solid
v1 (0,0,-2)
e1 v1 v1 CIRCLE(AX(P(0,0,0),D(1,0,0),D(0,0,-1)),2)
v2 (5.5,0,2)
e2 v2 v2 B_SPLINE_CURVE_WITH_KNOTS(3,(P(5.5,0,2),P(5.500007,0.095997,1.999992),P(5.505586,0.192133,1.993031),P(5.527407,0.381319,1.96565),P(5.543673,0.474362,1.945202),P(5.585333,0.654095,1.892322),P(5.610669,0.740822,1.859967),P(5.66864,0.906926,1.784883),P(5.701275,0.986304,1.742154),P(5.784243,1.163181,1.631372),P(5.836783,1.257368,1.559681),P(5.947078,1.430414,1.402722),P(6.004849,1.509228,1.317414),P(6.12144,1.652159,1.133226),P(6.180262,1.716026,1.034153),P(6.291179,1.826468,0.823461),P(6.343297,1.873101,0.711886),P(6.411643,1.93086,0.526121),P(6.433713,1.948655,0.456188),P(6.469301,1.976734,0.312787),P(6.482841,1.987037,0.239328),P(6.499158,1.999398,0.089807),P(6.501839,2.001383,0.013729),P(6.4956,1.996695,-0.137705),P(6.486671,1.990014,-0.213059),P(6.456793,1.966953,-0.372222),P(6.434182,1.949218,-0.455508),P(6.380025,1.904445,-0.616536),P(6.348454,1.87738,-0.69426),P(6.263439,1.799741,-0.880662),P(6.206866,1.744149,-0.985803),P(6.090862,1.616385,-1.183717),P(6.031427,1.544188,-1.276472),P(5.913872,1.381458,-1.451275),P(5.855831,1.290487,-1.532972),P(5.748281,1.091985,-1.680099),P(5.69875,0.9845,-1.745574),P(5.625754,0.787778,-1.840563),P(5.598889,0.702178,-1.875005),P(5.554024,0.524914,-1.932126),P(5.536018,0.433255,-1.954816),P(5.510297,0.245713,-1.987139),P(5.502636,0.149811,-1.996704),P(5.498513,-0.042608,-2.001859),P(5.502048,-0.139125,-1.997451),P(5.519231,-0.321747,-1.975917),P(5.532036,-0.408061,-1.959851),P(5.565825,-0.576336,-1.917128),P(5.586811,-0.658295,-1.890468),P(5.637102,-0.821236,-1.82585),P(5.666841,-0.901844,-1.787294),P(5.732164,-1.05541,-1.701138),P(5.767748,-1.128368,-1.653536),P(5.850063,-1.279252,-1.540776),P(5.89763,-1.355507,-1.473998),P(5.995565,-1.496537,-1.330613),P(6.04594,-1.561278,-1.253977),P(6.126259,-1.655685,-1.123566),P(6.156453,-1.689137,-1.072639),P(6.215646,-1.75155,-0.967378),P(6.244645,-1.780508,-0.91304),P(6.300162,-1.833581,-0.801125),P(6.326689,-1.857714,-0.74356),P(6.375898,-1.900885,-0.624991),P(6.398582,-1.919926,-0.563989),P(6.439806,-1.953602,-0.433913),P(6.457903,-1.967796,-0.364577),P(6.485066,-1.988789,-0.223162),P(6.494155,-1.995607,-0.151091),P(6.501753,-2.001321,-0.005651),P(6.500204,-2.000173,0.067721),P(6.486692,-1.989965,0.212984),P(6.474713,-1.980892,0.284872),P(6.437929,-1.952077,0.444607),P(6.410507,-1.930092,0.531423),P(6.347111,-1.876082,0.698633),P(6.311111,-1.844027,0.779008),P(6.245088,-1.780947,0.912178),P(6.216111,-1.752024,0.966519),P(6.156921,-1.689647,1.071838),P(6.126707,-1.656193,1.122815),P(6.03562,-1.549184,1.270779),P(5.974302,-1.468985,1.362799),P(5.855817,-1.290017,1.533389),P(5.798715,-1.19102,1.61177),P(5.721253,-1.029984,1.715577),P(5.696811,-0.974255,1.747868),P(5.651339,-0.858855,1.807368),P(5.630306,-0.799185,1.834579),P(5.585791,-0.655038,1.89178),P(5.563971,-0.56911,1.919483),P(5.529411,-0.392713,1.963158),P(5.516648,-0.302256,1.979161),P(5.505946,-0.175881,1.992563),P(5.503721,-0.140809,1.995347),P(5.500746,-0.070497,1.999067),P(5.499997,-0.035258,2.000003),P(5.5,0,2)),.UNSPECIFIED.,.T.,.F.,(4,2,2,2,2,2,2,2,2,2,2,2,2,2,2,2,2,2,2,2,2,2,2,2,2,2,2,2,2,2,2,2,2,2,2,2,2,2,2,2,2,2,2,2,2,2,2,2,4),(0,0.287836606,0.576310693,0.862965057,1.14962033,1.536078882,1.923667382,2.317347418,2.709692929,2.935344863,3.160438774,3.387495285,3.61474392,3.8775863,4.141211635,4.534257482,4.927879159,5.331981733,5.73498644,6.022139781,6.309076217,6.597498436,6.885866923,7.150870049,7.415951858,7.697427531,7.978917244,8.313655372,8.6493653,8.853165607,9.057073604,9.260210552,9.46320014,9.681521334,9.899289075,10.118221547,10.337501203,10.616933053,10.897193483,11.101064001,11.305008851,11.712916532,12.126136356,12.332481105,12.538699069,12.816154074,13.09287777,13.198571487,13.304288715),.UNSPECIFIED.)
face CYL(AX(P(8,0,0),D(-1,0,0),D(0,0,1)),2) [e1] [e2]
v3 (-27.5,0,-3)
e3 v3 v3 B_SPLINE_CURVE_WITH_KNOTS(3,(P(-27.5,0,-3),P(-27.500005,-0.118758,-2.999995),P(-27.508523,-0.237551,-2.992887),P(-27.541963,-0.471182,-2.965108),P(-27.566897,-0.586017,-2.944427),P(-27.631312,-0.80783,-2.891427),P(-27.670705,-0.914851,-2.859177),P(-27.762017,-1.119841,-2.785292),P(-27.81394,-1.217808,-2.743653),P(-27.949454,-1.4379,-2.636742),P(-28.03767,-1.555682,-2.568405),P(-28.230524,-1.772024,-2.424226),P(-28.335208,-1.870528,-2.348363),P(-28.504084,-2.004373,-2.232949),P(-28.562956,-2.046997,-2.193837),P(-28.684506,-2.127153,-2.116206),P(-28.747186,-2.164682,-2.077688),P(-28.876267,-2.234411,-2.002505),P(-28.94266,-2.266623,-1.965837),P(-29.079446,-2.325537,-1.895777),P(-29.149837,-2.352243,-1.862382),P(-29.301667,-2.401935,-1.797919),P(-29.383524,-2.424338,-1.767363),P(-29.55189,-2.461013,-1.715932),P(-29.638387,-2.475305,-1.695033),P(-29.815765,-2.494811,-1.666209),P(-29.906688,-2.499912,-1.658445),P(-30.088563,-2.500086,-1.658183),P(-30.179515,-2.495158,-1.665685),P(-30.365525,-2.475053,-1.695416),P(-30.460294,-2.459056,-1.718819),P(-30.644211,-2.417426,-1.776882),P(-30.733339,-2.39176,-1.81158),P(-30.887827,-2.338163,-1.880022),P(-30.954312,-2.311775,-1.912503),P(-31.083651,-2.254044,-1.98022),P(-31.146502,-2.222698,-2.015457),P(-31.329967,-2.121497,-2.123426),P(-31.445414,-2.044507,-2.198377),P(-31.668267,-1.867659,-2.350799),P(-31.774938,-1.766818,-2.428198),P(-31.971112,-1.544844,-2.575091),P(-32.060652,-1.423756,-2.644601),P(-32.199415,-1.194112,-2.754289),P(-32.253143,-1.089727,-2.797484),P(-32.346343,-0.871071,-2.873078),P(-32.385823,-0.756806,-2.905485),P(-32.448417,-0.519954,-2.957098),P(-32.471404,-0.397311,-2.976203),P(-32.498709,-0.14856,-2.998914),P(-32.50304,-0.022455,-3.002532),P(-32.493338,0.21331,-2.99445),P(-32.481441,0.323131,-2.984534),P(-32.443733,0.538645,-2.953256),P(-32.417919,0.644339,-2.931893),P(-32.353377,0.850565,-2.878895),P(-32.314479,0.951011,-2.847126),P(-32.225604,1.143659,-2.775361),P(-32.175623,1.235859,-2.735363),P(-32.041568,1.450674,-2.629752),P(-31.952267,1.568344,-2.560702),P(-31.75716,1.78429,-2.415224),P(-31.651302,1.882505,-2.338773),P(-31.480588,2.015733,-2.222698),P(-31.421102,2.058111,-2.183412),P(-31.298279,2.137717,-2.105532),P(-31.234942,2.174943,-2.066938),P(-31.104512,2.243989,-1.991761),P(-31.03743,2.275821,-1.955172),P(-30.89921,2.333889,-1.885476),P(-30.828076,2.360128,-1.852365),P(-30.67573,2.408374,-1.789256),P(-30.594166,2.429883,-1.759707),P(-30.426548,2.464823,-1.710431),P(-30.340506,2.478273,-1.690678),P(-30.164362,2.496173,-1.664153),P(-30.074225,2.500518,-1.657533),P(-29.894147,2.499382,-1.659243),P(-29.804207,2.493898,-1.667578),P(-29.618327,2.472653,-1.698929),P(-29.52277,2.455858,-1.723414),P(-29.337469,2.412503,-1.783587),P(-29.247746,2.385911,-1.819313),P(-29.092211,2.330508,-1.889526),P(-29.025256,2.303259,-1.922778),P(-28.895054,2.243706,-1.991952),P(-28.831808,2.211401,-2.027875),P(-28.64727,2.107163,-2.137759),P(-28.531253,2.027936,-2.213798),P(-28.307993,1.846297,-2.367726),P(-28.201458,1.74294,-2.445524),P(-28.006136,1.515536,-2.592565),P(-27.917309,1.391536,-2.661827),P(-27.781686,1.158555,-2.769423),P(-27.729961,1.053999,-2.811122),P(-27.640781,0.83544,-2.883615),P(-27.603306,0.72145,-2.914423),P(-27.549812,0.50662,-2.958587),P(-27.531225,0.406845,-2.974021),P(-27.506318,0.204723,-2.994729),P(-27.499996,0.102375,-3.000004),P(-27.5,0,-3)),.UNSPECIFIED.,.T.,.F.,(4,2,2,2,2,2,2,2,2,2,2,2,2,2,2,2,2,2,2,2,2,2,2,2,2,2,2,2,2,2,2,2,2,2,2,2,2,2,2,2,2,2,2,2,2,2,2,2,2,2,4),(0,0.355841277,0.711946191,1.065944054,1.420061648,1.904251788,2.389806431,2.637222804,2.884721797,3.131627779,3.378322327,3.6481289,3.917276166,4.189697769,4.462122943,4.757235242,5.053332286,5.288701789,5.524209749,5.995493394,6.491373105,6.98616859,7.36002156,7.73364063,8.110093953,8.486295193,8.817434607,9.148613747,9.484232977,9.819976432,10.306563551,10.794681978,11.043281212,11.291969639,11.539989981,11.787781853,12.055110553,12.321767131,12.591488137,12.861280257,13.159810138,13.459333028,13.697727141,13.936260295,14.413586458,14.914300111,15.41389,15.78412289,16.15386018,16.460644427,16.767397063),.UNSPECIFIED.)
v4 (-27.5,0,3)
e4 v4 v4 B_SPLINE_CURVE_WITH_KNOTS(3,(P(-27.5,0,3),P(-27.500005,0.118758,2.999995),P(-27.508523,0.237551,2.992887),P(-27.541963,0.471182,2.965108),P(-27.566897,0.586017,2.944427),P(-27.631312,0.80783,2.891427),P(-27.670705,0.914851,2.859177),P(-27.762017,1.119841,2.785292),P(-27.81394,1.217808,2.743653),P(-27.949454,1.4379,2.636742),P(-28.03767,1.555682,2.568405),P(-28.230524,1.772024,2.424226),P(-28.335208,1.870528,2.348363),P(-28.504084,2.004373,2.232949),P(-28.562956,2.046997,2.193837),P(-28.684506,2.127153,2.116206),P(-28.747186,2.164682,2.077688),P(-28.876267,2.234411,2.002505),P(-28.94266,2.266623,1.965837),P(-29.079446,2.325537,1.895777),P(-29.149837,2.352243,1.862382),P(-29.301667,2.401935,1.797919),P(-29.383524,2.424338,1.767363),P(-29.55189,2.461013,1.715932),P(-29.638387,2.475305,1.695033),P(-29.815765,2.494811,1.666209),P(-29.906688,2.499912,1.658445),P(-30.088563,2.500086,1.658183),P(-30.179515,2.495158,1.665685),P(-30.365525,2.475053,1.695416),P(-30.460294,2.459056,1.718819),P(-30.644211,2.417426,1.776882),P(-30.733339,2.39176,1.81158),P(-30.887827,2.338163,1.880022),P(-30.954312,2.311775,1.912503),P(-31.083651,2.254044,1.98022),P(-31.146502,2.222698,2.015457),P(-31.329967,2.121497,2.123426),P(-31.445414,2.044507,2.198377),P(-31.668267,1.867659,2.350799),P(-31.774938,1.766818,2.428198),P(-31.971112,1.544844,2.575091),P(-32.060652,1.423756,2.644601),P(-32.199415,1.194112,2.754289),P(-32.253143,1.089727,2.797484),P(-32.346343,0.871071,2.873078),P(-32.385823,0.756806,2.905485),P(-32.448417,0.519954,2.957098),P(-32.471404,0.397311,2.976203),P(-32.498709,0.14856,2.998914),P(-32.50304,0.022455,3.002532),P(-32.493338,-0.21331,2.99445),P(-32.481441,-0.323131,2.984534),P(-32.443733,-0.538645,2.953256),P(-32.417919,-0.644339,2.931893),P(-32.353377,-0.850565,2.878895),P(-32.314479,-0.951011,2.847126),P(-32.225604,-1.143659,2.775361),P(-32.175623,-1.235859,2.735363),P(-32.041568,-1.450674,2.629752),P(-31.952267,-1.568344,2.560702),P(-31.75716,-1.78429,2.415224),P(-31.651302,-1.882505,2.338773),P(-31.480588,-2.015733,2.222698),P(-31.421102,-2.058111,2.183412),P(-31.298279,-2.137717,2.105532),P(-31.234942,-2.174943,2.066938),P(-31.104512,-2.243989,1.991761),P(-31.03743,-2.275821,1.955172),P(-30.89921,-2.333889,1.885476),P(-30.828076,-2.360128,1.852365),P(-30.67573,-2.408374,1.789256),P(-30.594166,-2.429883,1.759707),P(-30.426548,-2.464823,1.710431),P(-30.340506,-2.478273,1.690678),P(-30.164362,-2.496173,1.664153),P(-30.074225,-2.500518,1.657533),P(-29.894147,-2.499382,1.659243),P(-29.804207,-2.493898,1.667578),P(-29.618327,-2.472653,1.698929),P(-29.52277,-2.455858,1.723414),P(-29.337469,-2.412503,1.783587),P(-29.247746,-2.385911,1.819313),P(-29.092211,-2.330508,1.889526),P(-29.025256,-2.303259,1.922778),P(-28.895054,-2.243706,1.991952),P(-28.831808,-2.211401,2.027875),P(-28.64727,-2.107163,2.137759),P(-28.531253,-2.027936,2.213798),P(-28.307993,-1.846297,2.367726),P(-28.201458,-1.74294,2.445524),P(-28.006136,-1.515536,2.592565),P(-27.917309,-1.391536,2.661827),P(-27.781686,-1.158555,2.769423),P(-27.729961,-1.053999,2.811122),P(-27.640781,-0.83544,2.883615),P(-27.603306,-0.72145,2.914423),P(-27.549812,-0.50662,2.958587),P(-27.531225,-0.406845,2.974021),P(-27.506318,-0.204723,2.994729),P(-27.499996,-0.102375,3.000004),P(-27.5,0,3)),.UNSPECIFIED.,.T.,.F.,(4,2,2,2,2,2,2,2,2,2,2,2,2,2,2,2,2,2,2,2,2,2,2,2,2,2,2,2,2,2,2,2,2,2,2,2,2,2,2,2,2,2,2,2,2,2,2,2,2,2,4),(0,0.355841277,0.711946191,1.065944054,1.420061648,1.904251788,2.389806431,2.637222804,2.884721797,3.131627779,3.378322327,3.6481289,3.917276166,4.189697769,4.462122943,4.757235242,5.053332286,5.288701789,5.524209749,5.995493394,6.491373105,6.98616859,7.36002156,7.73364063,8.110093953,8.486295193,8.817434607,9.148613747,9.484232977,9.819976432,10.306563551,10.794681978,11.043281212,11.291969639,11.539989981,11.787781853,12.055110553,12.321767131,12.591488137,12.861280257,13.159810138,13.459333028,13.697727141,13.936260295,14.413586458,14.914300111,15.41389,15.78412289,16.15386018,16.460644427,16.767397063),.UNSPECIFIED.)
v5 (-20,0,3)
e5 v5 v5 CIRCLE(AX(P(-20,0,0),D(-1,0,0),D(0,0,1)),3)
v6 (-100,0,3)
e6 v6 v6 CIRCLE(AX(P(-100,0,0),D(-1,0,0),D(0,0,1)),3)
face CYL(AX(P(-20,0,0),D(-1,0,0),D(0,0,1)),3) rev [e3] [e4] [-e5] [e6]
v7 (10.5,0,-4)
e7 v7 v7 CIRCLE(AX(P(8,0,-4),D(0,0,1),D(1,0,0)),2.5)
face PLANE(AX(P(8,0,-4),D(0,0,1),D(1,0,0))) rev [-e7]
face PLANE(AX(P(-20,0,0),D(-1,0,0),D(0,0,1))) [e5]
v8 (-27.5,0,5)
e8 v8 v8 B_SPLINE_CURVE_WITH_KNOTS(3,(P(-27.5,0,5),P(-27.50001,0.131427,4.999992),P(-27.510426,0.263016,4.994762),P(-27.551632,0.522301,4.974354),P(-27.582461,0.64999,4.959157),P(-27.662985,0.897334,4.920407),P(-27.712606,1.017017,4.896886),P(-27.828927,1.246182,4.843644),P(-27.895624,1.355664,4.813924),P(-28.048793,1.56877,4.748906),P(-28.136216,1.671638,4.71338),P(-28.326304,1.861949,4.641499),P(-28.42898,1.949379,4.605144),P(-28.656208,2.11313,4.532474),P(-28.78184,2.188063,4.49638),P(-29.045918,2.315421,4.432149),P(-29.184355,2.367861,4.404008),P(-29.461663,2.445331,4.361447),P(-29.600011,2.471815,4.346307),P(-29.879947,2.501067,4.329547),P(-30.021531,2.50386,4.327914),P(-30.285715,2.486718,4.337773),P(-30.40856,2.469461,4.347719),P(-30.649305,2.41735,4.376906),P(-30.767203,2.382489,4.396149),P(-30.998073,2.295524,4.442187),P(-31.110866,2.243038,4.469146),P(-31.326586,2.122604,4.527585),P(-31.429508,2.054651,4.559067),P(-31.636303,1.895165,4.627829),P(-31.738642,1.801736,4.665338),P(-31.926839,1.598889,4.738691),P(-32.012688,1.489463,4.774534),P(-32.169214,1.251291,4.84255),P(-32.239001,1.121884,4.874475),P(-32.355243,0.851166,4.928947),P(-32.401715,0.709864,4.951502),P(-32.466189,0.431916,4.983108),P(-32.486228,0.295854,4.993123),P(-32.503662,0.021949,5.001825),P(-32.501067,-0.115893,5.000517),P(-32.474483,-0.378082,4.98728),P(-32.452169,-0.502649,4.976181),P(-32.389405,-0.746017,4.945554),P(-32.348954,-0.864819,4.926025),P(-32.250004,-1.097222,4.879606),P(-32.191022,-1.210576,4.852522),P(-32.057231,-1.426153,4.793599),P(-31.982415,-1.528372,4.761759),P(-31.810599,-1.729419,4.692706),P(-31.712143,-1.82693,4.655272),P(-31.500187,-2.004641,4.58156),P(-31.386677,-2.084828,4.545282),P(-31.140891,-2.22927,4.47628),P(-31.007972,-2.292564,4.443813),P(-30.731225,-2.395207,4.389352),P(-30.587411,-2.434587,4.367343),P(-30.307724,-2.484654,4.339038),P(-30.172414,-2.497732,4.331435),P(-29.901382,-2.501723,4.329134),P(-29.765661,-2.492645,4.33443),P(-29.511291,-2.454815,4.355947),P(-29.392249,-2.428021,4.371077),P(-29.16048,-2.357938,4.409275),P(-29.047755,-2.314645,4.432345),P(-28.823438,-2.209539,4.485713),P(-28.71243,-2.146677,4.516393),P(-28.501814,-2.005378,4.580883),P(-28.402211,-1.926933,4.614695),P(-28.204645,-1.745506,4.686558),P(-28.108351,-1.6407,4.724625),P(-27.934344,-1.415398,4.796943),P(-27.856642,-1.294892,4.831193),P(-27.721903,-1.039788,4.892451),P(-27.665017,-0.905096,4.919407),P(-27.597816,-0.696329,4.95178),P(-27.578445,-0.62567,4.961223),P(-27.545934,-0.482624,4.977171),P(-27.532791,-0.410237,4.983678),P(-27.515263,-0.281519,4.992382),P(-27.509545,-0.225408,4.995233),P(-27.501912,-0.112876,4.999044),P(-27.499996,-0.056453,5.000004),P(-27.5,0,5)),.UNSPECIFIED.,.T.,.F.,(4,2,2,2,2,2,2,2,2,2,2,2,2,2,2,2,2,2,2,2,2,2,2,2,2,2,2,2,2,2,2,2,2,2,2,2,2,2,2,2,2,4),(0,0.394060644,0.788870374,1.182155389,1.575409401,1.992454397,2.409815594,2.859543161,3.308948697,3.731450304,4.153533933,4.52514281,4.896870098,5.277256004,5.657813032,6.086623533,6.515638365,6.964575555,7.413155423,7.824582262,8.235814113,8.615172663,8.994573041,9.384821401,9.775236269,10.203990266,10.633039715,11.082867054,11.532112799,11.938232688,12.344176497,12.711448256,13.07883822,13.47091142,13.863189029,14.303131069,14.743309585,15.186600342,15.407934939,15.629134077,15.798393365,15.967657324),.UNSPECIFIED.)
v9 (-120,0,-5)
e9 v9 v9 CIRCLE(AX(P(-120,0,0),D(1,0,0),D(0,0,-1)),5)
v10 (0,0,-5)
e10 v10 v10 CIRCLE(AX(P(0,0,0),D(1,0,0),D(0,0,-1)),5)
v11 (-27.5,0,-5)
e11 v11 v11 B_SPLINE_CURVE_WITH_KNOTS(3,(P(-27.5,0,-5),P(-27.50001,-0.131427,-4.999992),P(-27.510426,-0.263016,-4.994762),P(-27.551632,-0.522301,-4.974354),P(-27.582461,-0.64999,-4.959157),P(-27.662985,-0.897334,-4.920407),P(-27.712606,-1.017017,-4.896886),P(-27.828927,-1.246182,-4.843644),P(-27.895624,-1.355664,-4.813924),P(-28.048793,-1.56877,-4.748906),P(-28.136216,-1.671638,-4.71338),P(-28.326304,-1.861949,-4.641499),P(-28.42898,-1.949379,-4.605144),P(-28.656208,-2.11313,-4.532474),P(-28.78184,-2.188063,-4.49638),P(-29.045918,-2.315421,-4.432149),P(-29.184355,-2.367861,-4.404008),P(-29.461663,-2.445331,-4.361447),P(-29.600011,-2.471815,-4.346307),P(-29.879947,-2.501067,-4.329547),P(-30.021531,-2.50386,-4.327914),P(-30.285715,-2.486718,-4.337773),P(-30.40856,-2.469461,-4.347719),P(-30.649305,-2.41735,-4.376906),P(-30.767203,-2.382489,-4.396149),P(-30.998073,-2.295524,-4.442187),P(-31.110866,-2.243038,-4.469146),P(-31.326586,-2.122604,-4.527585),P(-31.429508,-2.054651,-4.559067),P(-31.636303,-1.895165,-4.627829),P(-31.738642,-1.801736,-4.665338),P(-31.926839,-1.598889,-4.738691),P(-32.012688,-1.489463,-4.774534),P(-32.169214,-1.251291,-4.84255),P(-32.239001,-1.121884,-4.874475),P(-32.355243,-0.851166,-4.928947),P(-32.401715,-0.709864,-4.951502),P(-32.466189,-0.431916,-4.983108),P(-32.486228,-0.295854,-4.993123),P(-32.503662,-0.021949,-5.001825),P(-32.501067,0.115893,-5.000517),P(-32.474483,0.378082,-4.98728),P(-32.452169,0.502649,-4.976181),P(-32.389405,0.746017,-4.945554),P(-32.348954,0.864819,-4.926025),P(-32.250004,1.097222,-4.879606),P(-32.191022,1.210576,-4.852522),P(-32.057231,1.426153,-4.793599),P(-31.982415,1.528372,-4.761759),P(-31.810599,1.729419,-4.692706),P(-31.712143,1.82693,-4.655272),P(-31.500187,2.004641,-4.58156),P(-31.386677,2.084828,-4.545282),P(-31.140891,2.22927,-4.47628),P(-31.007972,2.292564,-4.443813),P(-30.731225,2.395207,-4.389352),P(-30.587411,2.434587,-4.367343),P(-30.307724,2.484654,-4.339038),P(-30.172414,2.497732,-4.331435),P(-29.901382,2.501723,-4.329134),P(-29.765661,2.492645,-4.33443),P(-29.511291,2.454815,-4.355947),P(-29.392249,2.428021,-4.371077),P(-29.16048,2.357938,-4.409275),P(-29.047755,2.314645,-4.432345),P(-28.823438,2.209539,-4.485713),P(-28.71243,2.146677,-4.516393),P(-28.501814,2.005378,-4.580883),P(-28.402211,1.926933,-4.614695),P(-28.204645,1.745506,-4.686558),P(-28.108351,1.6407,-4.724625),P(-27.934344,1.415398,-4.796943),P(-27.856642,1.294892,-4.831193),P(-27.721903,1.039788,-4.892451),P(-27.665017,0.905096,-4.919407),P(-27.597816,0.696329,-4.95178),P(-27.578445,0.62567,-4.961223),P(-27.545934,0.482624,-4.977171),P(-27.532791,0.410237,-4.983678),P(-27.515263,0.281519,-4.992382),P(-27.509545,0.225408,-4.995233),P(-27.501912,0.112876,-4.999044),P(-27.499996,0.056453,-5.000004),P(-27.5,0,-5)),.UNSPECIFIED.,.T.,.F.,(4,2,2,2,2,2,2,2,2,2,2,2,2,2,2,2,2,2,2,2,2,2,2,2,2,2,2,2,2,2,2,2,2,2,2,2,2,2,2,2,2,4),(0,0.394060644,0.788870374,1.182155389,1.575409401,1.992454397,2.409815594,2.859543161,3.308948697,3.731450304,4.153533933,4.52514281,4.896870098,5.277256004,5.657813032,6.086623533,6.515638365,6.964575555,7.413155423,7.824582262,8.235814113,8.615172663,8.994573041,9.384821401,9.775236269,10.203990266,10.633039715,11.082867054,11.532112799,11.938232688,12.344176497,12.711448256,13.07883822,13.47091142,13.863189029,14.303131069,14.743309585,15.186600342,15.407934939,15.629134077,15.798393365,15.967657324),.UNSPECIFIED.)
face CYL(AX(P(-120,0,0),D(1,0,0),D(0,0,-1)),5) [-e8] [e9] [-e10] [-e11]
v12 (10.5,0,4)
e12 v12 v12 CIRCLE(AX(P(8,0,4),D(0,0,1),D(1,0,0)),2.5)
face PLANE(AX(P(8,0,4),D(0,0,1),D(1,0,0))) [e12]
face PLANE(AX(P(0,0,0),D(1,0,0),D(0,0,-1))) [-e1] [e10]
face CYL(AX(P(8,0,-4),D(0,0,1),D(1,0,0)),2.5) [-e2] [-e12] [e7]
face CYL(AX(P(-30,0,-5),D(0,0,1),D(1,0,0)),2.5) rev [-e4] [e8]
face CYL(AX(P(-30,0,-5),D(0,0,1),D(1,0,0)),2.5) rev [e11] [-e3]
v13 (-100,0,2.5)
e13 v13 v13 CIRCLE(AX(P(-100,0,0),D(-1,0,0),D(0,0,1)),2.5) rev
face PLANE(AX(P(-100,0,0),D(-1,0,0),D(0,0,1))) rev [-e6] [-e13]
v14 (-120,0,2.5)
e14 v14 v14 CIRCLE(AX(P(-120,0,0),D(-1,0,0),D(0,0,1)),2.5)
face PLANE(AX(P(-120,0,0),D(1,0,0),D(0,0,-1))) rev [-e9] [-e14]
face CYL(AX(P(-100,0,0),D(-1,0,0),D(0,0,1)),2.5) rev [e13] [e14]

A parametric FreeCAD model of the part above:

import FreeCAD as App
import Part
import Sketcher

V = App.Vector
Q = App.Units.Quantity

doc = App.newDocument("Part")
params = doc.addObject("Spreadsheet::Sheet", "Params")
for row, (alias, value) in enumerate([
    ("sketch1_diameter", "10 mm"),
    ("pad1_length", "120 mm"),
    ("sketch2_diameter", "5 mm"),
    ("pocket1_length", "20 mm"),
    ("sketch3_diameter", "6 mm"),
    ("pocket2_length", "80 mm"),
    ("sketch4_diameter", "4 mm"),
    ("pad2_length", "8 mm"),
    ("sketch5_diameter", "5 mm"),
    ("pad3_length", "4 mm"),
    ("pad3_length2", "4 mm"),
    ("sketch6_diameter", "5 mm"),
], start=1):
    params.set(f"A{row}", alias)
    params.set(f"B{row}", "=" + value)
    params.setAlias(f"B{row}", alias)

body = doc.addObject("PartDesign::Body", "Body")

sketch1 = body.newObject("Sketcher::SketchObject", "Sketch")
sketch1.AttachmentSupport = (doc.getObject("YZ_Plane"), [""])
sketch1.MapMode = "FlatFace"
sketch1.addGeometry(Part.Circle(V(0, 0, 0), V(0, 0, 1), 5), False)
sketch1.addConstraint([
    Sketcher.Constraint("Coincident", 0, 3, -1, 1),
    Sketcher.Constraint("Diameter", 0, Q("10 mm")),
])
sketch1.setExpression("Constraints[1]", "Params.sketch1_diameter")
pad1 = body.newObject("PartDesign::Pad", "Pad")
pad1.Profile = sketch1
pad1.setExpression("Length", "Params.pad1_length")
pad1.Reversed = True

sketch2 = body.newObject("Sketcher::SketchObject", "Sketch001")
sketch2.AttachmentSupport = (doc.getObject("YZ_Plane"), [""])
sketch2.MapMode = "FlatFace"
sketch2.AttachmentOffset = App.Placement(V(0, 0, -120), App.Rotation())
sketch2.addGeometry(Part.Circle(V(0, 0, 0), V(0, 0, 1), 2.5), False)
sketch2.addConstraint([
    Sketcher.Constraint("Coincident", 0, 3, -1, 1),
    Sketcher.Constraint("Diameter", 0, Q("5 mm")),
])
sketch2.setExpression("Constraints[1]", "Params.sketch2_diameter")
pocket1 = body.newObject("PartDesign::Pocket", "Pocket")
pocket1.Profile = sketch2
pocket1.setExpression("Length", "Params.pocket1_length")
pocket1.Reversed = True

sketch3 = body.newObject("Sketcher::SketchObject", "Sketch002")
sketch3.AttachmentSupport = (doc.getObject("YZ_Plane"), [""])
sketch3.MapMode = "FlatFace"
sketch3.AttachmentOffset = App.Placement(V(0, 0, -100), App.Rotation())
sketch3.addGeometry(Part.Circle(V(0, 0, 0), V(0, 0, 1), 3), False)
sketch3.addConstraint([
    Sketcher.Constraint("Coincident", 0, 3, -1, 1),
    Sketcher.Constraint("Diameter", 0, Q("6 mm")),
])
sketch3.setExpression("Constraints[1]", "Params.sketch3_diameter")
pocket2 = body.newObject("PartDesign::Pocket", "Pocket001")
pocket2.Profile = sketch3
pocket2.setExpression("Length", "Params.pocket2_length")
pocket2.Reversed = True

sketch4 = body.newObject("Sketcher::SketchObject", "Sketch003")
sketch4.AttachmentSupport = (doc.getObject("YZ_Plane"), [""])
sketch4.MapMode = "FlatFace"
sketch4.addGeometry(Part.Circle(V(0, 0, 0), V(0, 0, 1), 2), False)
sketch4.addConstraint([
    Sketcher.Constraint("Coincident", 0, 3, -1, 1),
    Sketcher.Constraint("Diameter", 0, Q("4 mm")),
])
sketch4.setExpression("Constraints[1]", "Params.sketch4_diameter")
pad2 = body.newObject("PartDesign::Pad", "Pad001")
pad2.Profile = sketch4
pad2.setExpression("Length", "Params.pad2_length")

sketch5 = body.newObject("Sketcher::SketchObject", "Sketch004")
sketch5.AttachmentSupport = (doc.getObject("XY_Plane"), [""])
sketch5.MapMode = "FlatFace"
sketch5.addGeometry(Part.Circle(V(8, 0, 0), V(0, 0, 1), 2.5), False)
sketch5.addConstraint([
    Sketcher.Constraint("PointOnObject", 0, 3, -1),
    Sketcher.Constraint("Diameter", 0, Q("5 mm")),
    Sketcher.Constraint("DistanceX", -1, 1, 0, 3, Q("8 mm")),
])
sketch5.setExpression("Constraints[1]", "Params.sketch5_diameter")
pad3 = body.newObject("PartDesign::Pad", "Pad002")
pad3.Profile = sketch5
pad3.Type = "TwoLengths"
pad3.setExpression("Length", "Params.pad3_length")
pad3.setExpression("Length2", "Params.pad3_length2")

sketch6 = body.newObject("Sketcher::SketchObject", "Sketch005")
sketch6.AttachmentSupport = (doc.getObject("XY_Plane"), [""])
sketch6.MapMode = "FlatFace"
sketch6.addGeometry(Part.Circle(V(-30, 0, 0), V(0, 0, 1), 2.5), False)
sketch6.addConstraint([
    Sketcher.Constraint("PointOnObject", 0, 3, -1),
    Sketcher.Constraint("Diameter", 0, Q("5 mm")),
    Sketcher.Constraint("DistanceX", 0, 3, -1, 1, Q("30 mm")),
])
sketch6.setExpression("Constraints[1]", "Params.sketch6_diameter")
pocket3 = body.newObject("PartDesign::Pocket", "Pocket002")
pocket3.Profile = sketch6
pocket3.Type = "ThroughAll"
pocket3.Midplane = True

doc.recompute()
